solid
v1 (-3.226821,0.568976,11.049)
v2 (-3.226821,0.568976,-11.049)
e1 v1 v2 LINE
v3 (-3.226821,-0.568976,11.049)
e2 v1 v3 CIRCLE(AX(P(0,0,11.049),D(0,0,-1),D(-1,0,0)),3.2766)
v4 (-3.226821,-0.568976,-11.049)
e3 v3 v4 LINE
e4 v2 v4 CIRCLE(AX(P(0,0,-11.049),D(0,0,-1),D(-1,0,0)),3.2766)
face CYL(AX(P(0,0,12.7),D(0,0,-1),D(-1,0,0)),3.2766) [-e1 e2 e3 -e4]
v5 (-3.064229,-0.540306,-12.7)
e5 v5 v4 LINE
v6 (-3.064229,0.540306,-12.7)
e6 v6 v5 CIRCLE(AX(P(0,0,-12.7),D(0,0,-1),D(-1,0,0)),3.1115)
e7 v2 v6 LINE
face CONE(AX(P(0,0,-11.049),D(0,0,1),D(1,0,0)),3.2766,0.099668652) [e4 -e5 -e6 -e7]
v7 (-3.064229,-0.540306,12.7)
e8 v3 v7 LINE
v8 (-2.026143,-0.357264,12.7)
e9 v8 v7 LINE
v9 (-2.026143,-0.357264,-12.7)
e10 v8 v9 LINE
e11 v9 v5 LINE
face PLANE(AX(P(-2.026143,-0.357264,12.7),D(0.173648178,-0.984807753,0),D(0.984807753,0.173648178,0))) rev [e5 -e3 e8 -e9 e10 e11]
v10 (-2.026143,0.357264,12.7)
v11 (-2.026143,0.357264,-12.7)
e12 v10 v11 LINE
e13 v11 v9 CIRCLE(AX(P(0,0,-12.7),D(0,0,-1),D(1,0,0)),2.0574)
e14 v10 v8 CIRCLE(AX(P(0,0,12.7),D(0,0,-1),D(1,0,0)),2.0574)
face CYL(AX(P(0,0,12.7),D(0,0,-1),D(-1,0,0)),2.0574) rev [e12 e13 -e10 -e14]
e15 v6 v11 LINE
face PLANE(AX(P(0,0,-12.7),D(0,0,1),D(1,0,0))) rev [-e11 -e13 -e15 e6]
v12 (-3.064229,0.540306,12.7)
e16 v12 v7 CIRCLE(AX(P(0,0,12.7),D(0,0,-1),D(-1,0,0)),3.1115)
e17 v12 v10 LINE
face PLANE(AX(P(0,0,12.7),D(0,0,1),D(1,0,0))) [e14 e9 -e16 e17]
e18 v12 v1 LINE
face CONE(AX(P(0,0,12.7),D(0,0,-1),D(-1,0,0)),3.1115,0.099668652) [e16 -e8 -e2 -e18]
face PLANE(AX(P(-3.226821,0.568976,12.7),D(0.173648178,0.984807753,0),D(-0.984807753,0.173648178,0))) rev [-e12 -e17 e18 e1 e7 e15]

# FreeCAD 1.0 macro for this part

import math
import FreeCAD as App
import Part
import Sketcher

V = App.Vector
Q = App.Units.Quantity


def add_polygon(sketch, points):
    """Adds a closed chain of lines whose ends are joined by coincident constraints."""
    first, n = sketch.GeometryCount, len(points)
    for a, b in zip(points, points[1:] + points[:1]):
        sketch.addGeometry(Part.LineSegment(App.Vector(*a, 0), App.Vector(*b, 0)), False)
    for i in range(n):
        sketch.addConstraint(Sketcher.Constraint("Coincident", first + i, 2, first + (i + 1) % n, 1))

doc = App.newDocument("Part")
body = doc.addObject("PartDesign::Body", "Body")

# Sketch on XY plane
sketch1 = body.newObject("Sketcher::SketchObject", "Sketch")
sketch1.AttachmentSupport = (doc.getObject("XY_Plane"), [""])
sketch1.MapMode = "FlatFace"
sketch1.addGeometry([
    Part.LineSegment(V(-3.2, 0.6, 0), V(-2, 0.4, 0)),
    Part.ArcOfCircle(Part.Circle(V(0, 0, 0), V(0, 0, 1), 2.1), math.radians(-170), math.radians(170)),
    Part.LineSegment(V(-2, -0.4, 0), V(-3.2, -0.6, 0)),
    Part.ArcOfCircle(Part.Circle(V(0, 0, 0), V(0, 0, 1), 3.3), math.radians(-170), math.radians(170)),
], False)
sketch1.addConstraint([
    Sketcher.Constraint("Coincident", 0, 2, 1, 2),
    Sketcher.Constraint("Coincident", 1, 1, 2, 1),
    Sketcher.Constraint("Coincident", 2, 2, 3, 1),
    Sketcher.Constraint("Coincident", 3, 2, 0, 1),
    Sketcher.Constraint("Coincident", 1, 3, -1, 1),
    Sketcher.Constraint("Coincident", 3, 3, -1, 1),
    Sketcher.Constraint("Vertical", 0, 2, 1, 1),
    Sketcher.Constraint("Vertical", 2, 2, 3, 2),
    Sketcher.Constraint("Angle", 0, Q("-10 deg")),
    Sketcher.Constraint("Radius", 1, Q("0.081 in")),
    Sketcher.Constraint("Radius", 3, Q("0.129 in")),
    Sketcher.Constraint("DistanceX", 2, 2, -1, 1, Q("3.226821 mm")),
])
pad1 = body.newObject("PartDesign::Pad", "Pad")
pad1.Profile = sketch1
pad1.Length = Q("1 in")
pad1.Midplane = True

# Sketch on YZ plane
sketch2 = body.newObject("Sketcher::SketchObject", "Sketch001")
sketch2.AttachmentSupport = (doc.getObject("YZ_Plane"), [""])
sketch2.MapMode = "FlatFace"
add_polygon(sketch2, [(3.11, -12.7), (3.28, -12.7), (3.28, -11.05)])  # lines 0-2
add_polygon(sketch2, [(3.28, 11.05), (3.28, 12.7), (3.11, 12.7)])  # lines 3-5
sketch2.addConstraint([
    Sketcher.Constraint("Horizontal", 0),
    Sketcher.Constraint("Vertical", 1),
    Sketcher.Constraint("Vertical", 3),
    Sketcher.Constraint("Horizontal", 4),
    Sketcher.Constraint("Symmetric", 0, 2, 3, 2, -1),
    Sketcher.Constraint("Vertical", 2, 2, 4, 2),
    Sketcher.Constraint("Equal", 1, 3),
    Sketcher.Constraint("DistanceY", 0, 2, 3, 2, Q("1 in")),
    Sketcher.Constraint("DistanceY", 1, 1, 1, 2, Q("0.065 in")),
    Sketcher.Constraint("DistanceX", 0, 1, 0, 2, Q("0.0065 in")),
    Sketcher.Constraint("DistanceX", -1, 1, 0, 2, Q("0.129 in")),
])
groove = body.newObject("PartDesign::Groove", "Groove")
groove.Profile = sketch2
groove.ReferenceAxis = (sketch2, ["V_Axis"])
groove.Angle = 360

doc.recompute()
